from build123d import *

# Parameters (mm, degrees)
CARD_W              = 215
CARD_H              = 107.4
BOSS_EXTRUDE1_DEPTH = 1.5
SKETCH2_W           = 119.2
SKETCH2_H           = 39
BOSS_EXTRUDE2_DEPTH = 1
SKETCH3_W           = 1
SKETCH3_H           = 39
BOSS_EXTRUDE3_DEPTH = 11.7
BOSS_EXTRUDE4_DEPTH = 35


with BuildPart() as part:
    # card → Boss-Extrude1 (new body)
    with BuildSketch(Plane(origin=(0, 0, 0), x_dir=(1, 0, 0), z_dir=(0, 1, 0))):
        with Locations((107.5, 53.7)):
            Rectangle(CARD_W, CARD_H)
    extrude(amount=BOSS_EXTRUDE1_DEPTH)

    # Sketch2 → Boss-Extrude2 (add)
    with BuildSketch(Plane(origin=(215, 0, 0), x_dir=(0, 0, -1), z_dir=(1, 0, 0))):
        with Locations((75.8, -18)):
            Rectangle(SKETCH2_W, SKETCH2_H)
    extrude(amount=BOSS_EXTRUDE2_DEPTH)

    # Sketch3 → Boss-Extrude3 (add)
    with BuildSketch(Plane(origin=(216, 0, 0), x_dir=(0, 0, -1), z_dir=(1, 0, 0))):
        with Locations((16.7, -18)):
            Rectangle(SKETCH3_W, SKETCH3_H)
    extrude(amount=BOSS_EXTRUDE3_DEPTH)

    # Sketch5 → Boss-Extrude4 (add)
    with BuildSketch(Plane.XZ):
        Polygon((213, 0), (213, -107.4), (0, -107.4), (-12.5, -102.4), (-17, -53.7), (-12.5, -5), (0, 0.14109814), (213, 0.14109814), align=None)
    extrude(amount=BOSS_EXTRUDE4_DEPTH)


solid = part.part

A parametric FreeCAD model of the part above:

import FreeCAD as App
import Part
import Sketcher
Q = App.Units.Quantity

doc = App.newDocument("Part")
body = doc.addObject("PartDesign::Body", "Body")

# Sketch on XZ plane
sketch1 = doc.addObject("Sketcher::SketchObject", "Sketch")
body.addObject(sketch1)
sketch1.AttachmentSupport = (doc.XZ_Plane, [""])
sketch1.MapMode = "FlatFace"
sketch1.addGeometry([
    Part.LineSegment(App.Vector(0, -107, 0), App.Vector(0, 0, 0)),
    Part.LineSegment(App.Vector(0, 0, 0), App.Vector(215, 0, 0)),
    Part.LineSegment(App.Vector(215, 0, 0), App.Vector(215, -107, 0)),
    Part.LineSegment(App.Vector(215, -107, 0), App.Vector(0, -107, 0)),
], False)
sketch1.addConstraint([
    Sketcher.Constraint("Coincident", 0, 2, 1, 1),
    Sketcher.Constraint("Coincident", 1, 2, 2, 1),
    Sketcher.Constraint("Coincident", 2, 2, 3, 1),
    Sketcher.Constraint("Coincident", 3, 2, 0, 1),
    Sketcher.Constraint("Vertical", 0),
    Sketcher.Constraint("Horizontal", 1),
    Sketcher.Constraint("Vertical", 2),
    Sketcher.Constraint("Horizontal", 3),
    Sketcher.Constraint("Coincident", 0, 2, -1, 1),
    Sketcher.Constraint("DistanceX", 1, 1, 1, 2, Q("215 mm")),
    Sketcher.Constraint("DistanceY", 0, 1, 0, 2, Q("107.4 mm")),
])
pad1 = doc.addObject("PartDesign::Pad", "Pad")
body.addObject(pad1)
pad1.Profile = sketch1
pad1.Length = 1.5
pad1.Reversed = True

# Sketch on YZ plane
sketch2 = doc.addObject("Sketcher::SketchObject", "Sketch001")
body.addObject(sketch2)
sketch2.AttachmentSupport = (doc.YZ_Plane, [""])
sketch2.MapMode = "FlatFace"
sketch2.AttachmentOffset = App.Placement(App.Vector(0, 0, 215), App.Rotation())
sketch2.addGeometry([
    Part.LineSegment(App.Vector(2, -16, 0), App.Vector(-38, -16, 0)),
    Part.LineSegment(App.Vector(-38, -16, 0), App.Vector(-38, -135, 0)),
    Part.LineSegment(App.Vector(-38, -135, 0), App.Vector(2, -135, 0)),
    Part.LineSegment(App.Vector(2, -135, 0), App.Vector(2, -16, 0)),
], False)
sketch2.addConstraint([
    Sketcher.Constraint("Coincident", 0, 2, 1, 1),
    Sketcher.Constraint("Coincident", 1, 2, 2, 1),
    Sketcher.Constraint("Coincident", 2, 2, 3, 1),
    Sketcher.Constraint("Coincident", 3, 2, 0, 1),
    Sketcher.Constraint("Horizontal", 0),
    Sketcher.Constraint("Vertical", 1),
    Sketcher.Constraint("Horizontal", 2),
    Sketcher.Constraint("Vertical", 3),
    Sketcher.Constraint("DistanceX", 0, 2, 0, 1, Q("39 mm")),
    Sketcher.Constraint("DistanceY", 1, 2, 1, 1, Q("119.2 mm")),
    Sketcher.Constraint("DistanceX", 0, 2, -1, 1, Q("37.5 mm")),
    Sketcher.Constraint("DistanceY", 0, 2, -1, 1, Q("16.2 mm")),
])
pad2 = doc.addObject("PartDesign::Pad", "Pad001")
body.addObject(pad2)
pad2.Profile = sketch2
pad2.Length = 1

# Sketch on YZ plane
sketch3 = doc.addObject("Sketcher::SketchObject", "Sketch002")
body.addObject(sketch3)
sketch3.AttachmentSupport = (doc.YZ_Plane, [""])
sketch3.MapMode = "FlatFace"
sketch3.AttachmentOffset = App.Placement(App.Vector(0, 0, 216), App.Rotation())
sketch3.addGeometry([
    Part.LineSegment(App.Vector(1.5, -16.2, 0), App.Vector(-37.5, -16.2, 0)),
    Part.LineSegment(App.Vector(-37.5, -16.2, 0), App.Vector(-37.5, -17.2, 0)),
    Part.LineSegment(App.Vector(-37.5, -17.2, 0), App.Vector(1.5, -17.2, 0)),
    Part.LineSegment(App.Vector(1.5, -17.2, 0), App.Vector(1.5, -16.2, 0)),
], False)
sketch3.addConstraint([
    Sketcher.Constraint("Coincident", 0, 2, 1, 1),
    Sketcher.Constraint("Coincident", 1, 2, 2, 1),
    Sketcher.Constraint("Coincident", 2, 2, 3, 1),
    Sketcher.Constraint("Coincident", 3, 2, 0, 1),
    Sketcher.Constraint("Horizontal", 0),
    Sketcher.Constraint("Vertical", 1),
    Sketcher.Constraint("Horizontal", 2),
    Sketcher.Constraint("Vertical", 3),
    Sketcher.Constraint("DistanceX", 0, 2, 0, 1, Q("39 mm")),
    Sketcher.Constraint("DistanceY", 1, 2, 1, 1, Q("1 mm")),
    Sketcher.Constraint("DistanceX", 0, 2, -1, 1, Q("37.5 mm")),
    Sketcher.Constraint("DistanceY", 0, 2, -1, 1, Q("16.2 mm")),
])
pad3 = doc.addObject("PartDesign::Pad", "Pad002")
body.addObject(pad3)
pad3.Profile = sketch3
pad3.Length = 11.7

# Sketch on XZ plane
sketch4 = doc.addObject("Sketcher::SketchObject", "Sketch003")
body.addObject(sketch4)
sketch4.AttachmentSupport = (doc.XZ_Plane, [""])
sketch4.MapMode = "FlatFace"
sketch4.addGeometry([
    Part.LineSegment(App.Vector(213, -107, 0), App.Vector(213, 0, 0)),  # 0
    Part.LineSegment(App.Vector(213, 0, 0), App.Vector(0, 0, 0)),  # 1
    Part.LineSegment(App.Vector(0, 0, 0), App.Vector(-12, -5, 0)),  # 2
    Part.LineSegment(App.Vector(-12, -5, 0), App.Vector(-17, -54, 0)),  # 3
    Part.LineSegment(App.Vector(-17, -54, 0), App.Vector(-12, -102, 0)),  # 4
    Part.LineSegment(App.Vector(-12, -102, 0), App.Vector(0, -107, 0)),  # 5
    Part.LineSegment(App.Vector(0, -107, 0), App.Vector(213, -107, 0)),  # 6
], False)
sketch4.addConstraint([
    Sketcher.Constraint("Coincident", 0, 2, 1, 1),
    Sketcher.Constraint("Coincident", 1, 2, 2, 1),
    Sketcher.Constraint("Coincident", 2, 2, 3, 1),
    Sketcher.Constraint("Coincident", 3, 2, 4, 1),
    Sketcher.Constraint("Coincident", 4, 2, 5, 1),
    Sketcher.Constraint("Coincident", 5, 2, 6, 1),
    Sketcher.Constraint("Coincident", 6, 2, 0, 1),
    Sketcher.Constraint("Vertical", 0),
    Sketcher.Constraint("Horizontal", 1),
    Sketcher.Constraint("Horizontal", 6),
    Sketcher.Constraint("PointOnObject", 1, 2, -2),
    Sketcher.Constraint("PointOnObject", 5, 2, -2),
    Sketcher.Constraint("Vertical", 2, 2, 4, 2),
    Sketcher.Constraint("Equal", 3, 4),
    Sketcher.Constraint("DistanceX", 1, 2, 1, 1, Q("213 mm")),
    Sketcher.Constraint("DistanceY", 2, 2, -1, 1, Q("5 mm")),
    Sketcher.Constraint("DistanceX", 3, 2, -1, 1, Q("17 mm")),
    Sketcher.Constraint("DistanceY", 5, 2, 4, 2, Q("5 mm")),
    Sketcher.Constraint("DistanceX", 2, 2, -1, 1, Q("12.5 mm")),
    Sketcher.Constraint("DistanceY", 3, 2, -1, 1, Q("53.7 mm")),
    Sketcher.Constraint("DistanceY", 0, 1, 0, 2, Q("107.541098 mm")),
])
pad4 = doc.addObject("PartDesign::Pad", "Pad003")
body.addObject(pad4)
pad4.Profile = sketch4
pad4.Length = 35

doc.recompute()
